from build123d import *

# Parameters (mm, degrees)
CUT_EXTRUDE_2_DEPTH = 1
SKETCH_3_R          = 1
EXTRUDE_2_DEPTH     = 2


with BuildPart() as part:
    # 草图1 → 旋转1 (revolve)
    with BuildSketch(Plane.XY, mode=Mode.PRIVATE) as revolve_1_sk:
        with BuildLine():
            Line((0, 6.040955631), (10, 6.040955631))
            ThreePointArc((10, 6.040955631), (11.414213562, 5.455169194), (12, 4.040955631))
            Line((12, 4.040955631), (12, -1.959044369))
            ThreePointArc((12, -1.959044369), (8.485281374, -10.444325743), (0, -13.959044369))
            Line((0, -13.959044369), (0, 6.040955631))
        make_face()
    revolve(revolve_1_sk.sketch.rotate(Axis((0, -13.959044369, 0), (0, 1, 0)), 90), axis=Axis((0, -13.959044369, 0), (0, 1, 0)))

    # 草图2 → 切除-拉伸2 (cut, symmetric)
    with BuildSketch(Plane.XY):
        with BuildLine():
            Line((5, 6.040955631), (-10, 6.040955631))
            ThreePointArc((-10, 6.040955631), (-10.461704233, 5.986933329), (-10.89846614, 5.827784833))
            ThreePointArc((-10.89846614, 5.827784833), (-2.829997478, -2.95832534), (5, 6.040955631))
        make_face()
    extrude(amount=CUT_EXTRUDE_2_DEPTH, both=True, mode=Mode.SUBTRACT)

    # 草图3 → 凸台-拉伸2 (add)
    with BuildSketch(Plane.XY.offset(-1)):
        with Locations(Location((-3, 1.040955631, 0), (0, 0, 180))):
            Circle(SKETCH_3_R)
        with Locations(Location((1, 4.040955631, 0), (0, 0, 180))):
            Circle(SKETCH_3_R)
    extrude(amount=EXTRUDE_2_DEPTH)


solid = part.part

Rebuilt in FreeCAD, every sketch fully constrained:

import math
import FreeCAD as App
import Part
import Sketcher
from FreeCAD import Vector

doc = App.newDocument("Part")
params = doc.addObject("Spreadsheet::Sheet", "Params")
for row, (alias, value) in enumerate([
    ("sketch1_radius", "12 mm"),
    ("sketch1_radius2", "2 mm"),
    ("sketch1_height", "20 mm"),
    ("revolution_angle", "360 deg"),
    ("sketch2_radius", "2 mm"),
    ("sketch2_radius2", "8 mm"),
    ("sketch2_width", "15 mm"),
    ("pocket1_length", "2 mm"),
    ("sketch3_diameter", "2 mm"),
    ("pad1_length", "2 mm"),
], start=1):
    params.set(f"A{row}", alias)
    params.set(f"B{row}", "=" + value)
    params.setAlias(f"B{row}", alias)

body = doc.addObject("PartDesign::Body", "Body")

sketch1 = doc.addObject("Sketcher::SketchObject", "Sketch")
body.addObject(sketch1)
sketch1.AttachmentSupport = (doc.XY_Plane, [""])
sketch1.MapMode = "FlatFace"
sketch1.addGeometry(Part.LineSegment(Vector(10, 6.040956, 0), Vector(0, 6.040956, 0)), False)
sketch1.addGeometry(Part.LineSegment(Vector(0, 6.040956, 0), Vector(0, -13.959044, 0)), False)
sketch1.addGeometry(Part.ArcOfCircle(Part.Circle(Vector(0, -1.959044, 0), Vector(0, 0, 1), 12), math.radians(-90), math.radians(0)), False)
sketch1.addGeometry(Part.LineSegment(Vector(12, -1.959044, 0), Vector(12, 4.040956, 0)), False)
sketch1.addGeometry(Part.ArcOfCircle(Part.Circle(Vector(10, 4.040956, 0), Vector(0, 0, 1), 2), math.radians(0), math.radians(90)), False)
sketch1.addConstraint(Sketcher.Constraint("Coincident", 0, 2, 1, 1))
sketch1.addConstraint(Sketcher.Constraint("Coincident", 1, 2, 2, 1))
sketch1.addConstraint(Sketcher.Constraint("Tangent", 2, 2, 3, 1))
sketch1.addConstraint(Sketcher.Constraint("Tangent", 3, 2, 4, 1))
sketch1.addConstraint(Sketcher.Constraint("Tangent", 4, 2, 0, 1))
sketch1.addConstraint(Sketcher.Constraint("Horizontal", 0))
sketch1.addConstraint(Sketcher.Constraint("Vertical", 1))
sketch1.addConstraint(Sketcher.Constraint("Vertical", 3))
sketch1.addConstraint(Sketcher.Constraint("PointOnObject", 2, 3, -2))
sketch1.addConstraint(Sketcher.Constraint("PointOnObject", 0, 2, -2))
sketch1.addConstraint(Sketcher.Constraint("Radius", 2, 12.0))
sketch1.addConstraint(Sketcher.Constraint("Radius", 4, 2.0))
sketch1.addConstraint(Sketcher.Constraint("DistanceY", 1, 2, 1, 1, 20.0))
sketch1.addConstraint(Sketcher.Constraint("DistanceY", 2, 3, -1, 1, 1.959044))
sketch1.setExpression("Constraints[10]", "Params.sketch1_radius")
sketch1.setExpression("Constraints[11]", "Params.sketch1_radius2")
sketch1.setExpression("Constraints[12]", "Params.sketch1_height")
revolution = doc.addObject("PartDesign::Revolution", "Revolution")
body.addObject(revolution)
revolution.Profile = sketch1
revolution.ReferenceAxis = (sketch1, ["V_Axis"])
revolution.setExpression("Angle", "Params.revolution_angle")

sketch2 = doc.addObject("Sketcher::SketchObject", "Sketch001")
body.addObject(sketch2)
sketch2.AttachmentSupport = (doc.XY_Plane, [""])
sketch2.MapMode = "FlatFace"
sketch2.addGeometry(Part.LineSegment(Vector(5, 6.040956, 0), Vector(-10, 6.040956, 0)), False)
sketch2.addGeometry(Part.ArcOfCircle(Part.Circle(Vector(-10, 4.040956, 0), Vector(0, 0, 1), 2), math.radians(90), math.radians(116.694489)), False)
sketch2.addGeometry(Part.ArcOfCircle(Part.Circle(Vector(-2.937254, 5.040956, 0), Vector(0, 0, 1), 8), math.radians(174.355626), math.radians(367.180756)), False)
sketch2.addConstraint(Sketcher.Constraint("Tangent", 0, 2, 1, 1))
sketch2.addConstraint(Sketcher.Constraint("Coincident", 1, 2, 2, 1))
sketch2.addConstraint(Sketcher.Constraint("Coincident", 2, 2, 0, 1))
sketch2.addConstraint(Sketcher.Constraint("Horizontal", 0))
sketch2.addConstraint(Sketcher.Constraint("Radius", 1, 2.0))
sketch2.addConstraint(Sketcher.Constraint("Radius", 2, 8.0))
sketch2.addConstraint(Sketcher.Constraint("DistanceX", 0, 2, 0, 1, 15.0))
sketch2.addConstraint(Sketcher.Constraint("DistanceX", 1, 3, -1, 1, 10.0))
sketch2.addConstraint(Sketcher.Constraint("DistanceY", 1, 3, 2, 3, 1.0))
sketch2.addConstraint(Sketcher.Constraint("DistanceY", -1, 1, 1, 3, 4.040956))
sketch2.setExpression("Constraints[4]", "Params.sketch2_radius")
sketch2.setExpression("Constraints[5]", "Params.sketch2_radius2")
sketch2.setExpression("Constraints[6]", "Params.sketch2_width")
pocket1 = doc.addObject("PartDesign::Pocket", "Pocket")
body.addObject(pocket1)
pocket1.Profile = sketch2
pocket1.setExpression("Length", "Params.pocket1_length")
pocket1.Midplane = True

sketch3 = doc.addObject("Sketcher::SketchObject", "Sketch002")
body.addObject(sketch3)
sketch3.AttachmentSupport = (doc.XY_Plane, [""])
sketch3.MapMode = "FlatFace"
sketch3.AttachmentOffset = App.Placement(Vector(0, 0, -1), App.Rotation())
sketch3.addGeometry(Part.Circle(Vector(-3, 1.040956, 0), Vector(0, 0, 1), 1), False)
sketch3.addGeometry(Part.Circle(Vector(1, 4.040956, 0), Vector(0, 0, 1), 1), False)
sketch3.addConstraint(Sketcher.Constraint("Equal", 0, 1))
sketch3.addConstraint(Sketcher.Constraint("Diameter", 0, 2.0))
sketch3.addConstraint(Sketcher.Constraint("DistanceX", 0, 3, -1, 1, 3.0))
sketch3.addConstraint(Sketcher.Constraint("DistanceX", -1, 1, 1, 3, 1.0))
sketch3.addConstraint(Sketcher.Constraint("DistanceY", 0, 3, 1, 3, 3.0))
sketch3.addConstraint(Sketcher.Constraint("DistanceY", -1, 1, 0, 3, 1.040956))
sketch3.setExpression("Constraints[1]", "Params.sketch3_diameter")
pad1 = doc.addObject("PartDesign::Pad", "Pad")
body.addObject(pad1)
pad1.Profile = sketch3
pad1.setExpression("Length", "Params.pad1_length")

doc.recompute()
